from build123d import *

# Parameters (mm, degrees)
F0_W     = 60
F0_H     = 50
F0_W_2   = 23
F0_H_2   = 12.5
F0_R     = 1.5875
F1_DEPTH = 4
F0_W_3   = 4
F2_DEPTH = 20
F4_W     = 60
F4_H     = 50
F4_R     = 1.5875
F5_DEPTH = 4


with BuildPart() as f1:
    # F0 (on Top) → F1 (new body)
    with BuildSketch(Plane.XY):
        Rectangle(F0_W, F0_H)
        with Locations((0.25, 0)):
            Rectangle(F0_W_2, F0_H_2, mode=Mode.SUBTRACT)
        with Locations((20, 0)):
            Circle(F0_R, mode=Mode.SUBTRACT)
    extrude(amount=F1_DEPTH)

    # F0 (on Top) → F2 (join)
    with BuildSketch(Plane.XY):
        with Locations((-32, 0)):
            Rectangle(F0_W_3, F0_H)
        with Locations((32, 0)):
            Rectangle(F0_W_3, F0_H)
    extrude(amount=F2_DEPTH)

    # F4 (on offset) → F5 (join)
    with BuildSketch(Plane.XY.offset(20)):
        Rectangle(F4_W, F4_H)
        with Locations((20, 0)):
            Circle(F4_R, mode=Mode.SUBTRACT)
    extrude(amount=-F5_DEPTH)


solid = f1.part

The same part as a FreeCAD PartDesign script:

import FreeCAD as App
import Part
import Sketcher

V = App.Vector

doc = App.newDocument("Part")
params = doc.addObject("Spreadsheet::Sheet", "Params")
for row, (alias, value) in enumerate([
    ("sketch1_width", "60 mm"),
    ("sketch1_width2", "23 mm"),
    ("sketch1_height", "50 mm"),
    ("sketch1_height2", "12.5 mm"),
    ("pad1_length", "4 mm"),
    ("sketch2_width", "4 mm"),
    ("sketch2_height", "50 mm"),
    ("pad2_length", "20 mm"),
    ("sketch3_width", "60 mm"),
    ("sketch3_height", "50 mm"),
    ("pad3_length", "4 mm"),
], start=1):
    params.set(f"A{row}", alias)
    params.set(f"B{row}", "=" + value)
    params.setAlias(f"B{row}", alias)

body = doc.addObject("PartDesign::Body", "Body")

# Sketch on XY plane
sketch1 = body.newObject("Sketcher::SketchObject", "Sketch")
sketch1.AttachmentSupport = (doc.getObject("XY_Plane"), [""])
sketch1.MapMode = "FlatFace"
sketch1.addGeometry([
    Part.LineSegment(V(-30, 25, 0), V(-30, -25, 0)),  # 0
    Part.LineSegment(V(-30, -25, 0), V(30, -25, 0)),  # 1
    Part.LineSegment(V(30, -25, 0), V(30, 25, 0)),  # 2
    Part.LineSegment(V(30, 25, 0), V(-30, 25, 0)),  # 3
    Part.LineSegment(V(11.8, -6.2, 0), V(-11.2, -6.2, 0)),  # 4
    Part.LineSegment(V(-11.2, -6.2, 0), V(-11.2, 6.2, 0)),  # 5
    Part.LineSegment(V(-11.2, 6.2, 0), V(11.8, 6.2, 0)),  # 6
    Part.LineSegment(V(11.8, 6.2, 0), V(11.8, -6.2, 0)),  # 7
    Part.Circle(V(20, 0, 0), V(0, 0, 1), 1.6),  # 8
], False)
sketch1.addConstraint([
    Sketcher.Constraint("Coincident", 0, 2, 1, 1),
    Sketcher.Constraint("Coincident", 1, 2, 2, 1),
    Sketcher.Constraint("Coincident", 2, 2, 3, 1),
    Sketcher.Constraint("Coincident", 3, 2, 0, 1),
    Sketcher.Constraint("Coincident", 4, 2, 5, 1),
    Sketcher.Constraint("Coincident", 5, 2, 6, 1),
    Sketcher.Constraint("Coincident", 6, 2, 7, 1),
    Sketcher.Constraint("Coincident", 7, 2, 4, 1),
    Sketcher.Constraint("Vertical", 0),
    Sketcher.Constraint("Horizontal", 1),
    Sketcher.Constraint("Vertical", 2),
    Sketcher.Constraint("Horizontal", 3),
    Sketcher.Constraint("Horizontal", 4),
    Sketcher.Constraint("Vertical", 5),
    Sketcher.Constraint("Horizontal", 6),
    Sketcher.Constraint("Vertical", 7),
    Sketcher.Constraint("Symmetric", 0, 2, 2, 2, -1, 1),
    Sketcher.Constraint("PointOnObject", 8, 3, -1),
    Sketcher.Constraint("DistanceX", 1, 1, 1, 2, 60.0),
    Sketcher.Constraint("DistanceX", 4, 2, 4, 1, 23.0),
    Sketcher.Constraint("DistanceY", 0, 2, 0, 1, 50.0),
    Sketcher.Constraint("Diameter", 8, 3.175),
    Sketcher.Constraint("DistanceY", 5, 1, 5, 2, 12.5),
    Sketcher.Constraint("DistanceX", -1, 1, 8, 3, 20.0),
    Sketcher.Constraint("DistanceX", 4, 2, -1, 1, 11.25),
    Sketcher.Constraint("DistanceY", 4, 2, -1, 1, 6.25),
])
sketch1.setExpression("Constraints[18]", "Params.sketch1_width")
sketch1.setExpression("Constraints[19]", "Params.sketch1_width2")
sketch1.setExpression("Constraints[20]", "Params.sketch1_height")
sketch1.setExpression("Constraints[22]", "Params.sketch1_height2")
pad1 = body.newObject("PartDesign::Pad", "Pad")
pad1.Profile = sketch1
pad1.setExpression("Length", "Params.pad1_length")

# Sketch on XY plane
sketch2 = body.newObject("Sketcher::SketchObject", "Sketch001")
sketch2.AttachmentSupport = (doc.getObject("XY_Plane"), [""])
sketch2.MapMode = "FlatFace"
sketch2.addGeometry([
    Part.LineSegment(V(-34, 25, 0), V(-34, -25, 0)),  # 0
    Part.LineSegment(V(-34, -25, 0), V(-30, -25, 0)),  # 1
    Part.LineSegment(V(-30, -25, 0), V(-30, 25, 0)),  # 2
    Part.LineSegment(V(-30, 25, 0), V(-34, 25, 0)),  # 3
    Part.LineSegment(V(30, 25, 0), V(30, -25, 0)),  # 4
    Part.LineSegment(V(30, -25, 0), V(34, -25, 0)),  # 5
    Part.LineSegment(V(34, -25, 0), V(34, 25, 0)),  # 6
    Part.LineSegment(V(34, 25, 0), V(30, 25, 0)),  # 7
], False)
sketch2.addConstraint([
    Sketcher.Constraint("Coincident", 0, 2, 1, 1),
    Sketcher.Constraint("Coincident", 1, 2, 2, 1),
    Sketcher.Constraint("Coincident", 2, 2, 3, 1),
    Sketcher.Constraint("Coincident", 3, 2, 0, 1),
    Sketcher.Constraint("Coincident", 4, 2, 5, 1),
    Sketcher.Constraint("Coincident", 5, 2, 6, 1),
    Sketcher.Constraint("Coincident", 6, 2, 7, 1),
    Sketcher.Constraint("Coincident", 7, 2, 4, 1),
    Sketcher.Constraint("Vertical", 0),
    Sketcher.Constraint("Horizontal", 1),
    Sketcher.Constraint("Vertical", 2),
    Sketcher.Constraint("Horizontal", 3),
    Sketcher.Constraint("Vertical", 4),
    Sketcher.Constraint("Horizontal", 5),
    Sketcher.Constraint("Vertical", 6),
    Sketcher.Constraint("Horizontal", 7),
    Sketcher.Constraint("Symmetric", 2, 2, 4, 2, -1, 1),
    Sketcher.Constraint("Symmetric", 0, 2, 6, 2, -1, 1),
    Sketcher.Constraint("Horizontal", 1, 2, 4, 2),
    Sketcher.Constraint("DistanceX", 1, 1, 1, 2, 4.0),
    Sketcher.Constraint("DistanceY", 0, 2, 0, 1, 50.0),
    Sketcher.Constraint("DistanceX", 0, 2, -1, 1, 34.0),
])
sketch2.setExpression("Constraints[19]", "Params.sketch2_width")
sketch2.setExpression("Constraints[20]", "Params.sketch2_height")
pad2 = body.newObject("PartDesign::Pad", "Pad001")
pad2.Profile = sketch2
pad2.setExpression("Length", "Params.pad2_length")

# Sketch on XY plane
sketch3 = body.newObject("Sketcher::SketchObject", "Sketch002")
sketch3.AttachmentSupport = (doc.getObject("XY_Plane"), [""])
sketch3.MapMode = "FlatFace"
sketch3.AttachmentOffset = App.Placement(V(0, 0, 20), App.Rotation())
sketch3.addGeometry([
    Part.LineSegment(V(-30, 25, 0), V(-30, -25, 0)),  # 0
    Part.LineSegment(V(-30, -25, 0), V(30, -25, 0)),  # 1
    Part.LineSegment(V(30, -25, 0), V(30, 25, 0)),  # 2
    Part.LineSegment(V(30, 25, 0), V(-30, 25, 0)),  # 3
    Part.Circle(V(20, 0, 0), V(0, 0, 1), 1.6),  # 4
], False)
sketch3.addConstraint([
    Sketcher.Constraint("Coincident", 0, 2, 1, 1),
    Sketcher.Constraint("Coincident", 1, 2, 2, 1),
    Sketcher.Constraint("Coincident", 2, 2, 3, 1),
    Sketcher.Constraint("Coincident", 3, 2, 0, 1),
    Sketcher.Constraint("Vertical", 0),
    Sketcher.Constraint("Horizontal", 1),
    Sketcher.Constraint("Vertical", 2),
    Sketcher.Constraint("Horizontal", 3),
    Sketcher.Constraint("Symmetric", 0, 2, 2, 2, -1, 1),
    Sketcher.Constraint("PointOnObject", 4, 3, -1),
    Sketcher.Constraint("DistanceX", 1, 1, 1, 2, 60.0),
    Sketcher.Constraint("DistanceY", 0, 2, 0, 1, 50.0),
    Sketcher.Constraint("Diameter", 4, 3.175),
    Sketcher.Constraint("DistanceX", -1, 1, 4, 3, 20.0),
])
sketch3.setExpression("Constraints[10]", "Params.sketch3_width")
sketch3.setExpression("Constraints[11]", "Params.sketch3_height")
pad3 = body.newObject("PartDesign::Pad", "Pad002")
pad3.Profile = sketch3
pad3.setExpression("Length", "Params.pad3_length")
pad3.Reversed = True

doc.recompute()
